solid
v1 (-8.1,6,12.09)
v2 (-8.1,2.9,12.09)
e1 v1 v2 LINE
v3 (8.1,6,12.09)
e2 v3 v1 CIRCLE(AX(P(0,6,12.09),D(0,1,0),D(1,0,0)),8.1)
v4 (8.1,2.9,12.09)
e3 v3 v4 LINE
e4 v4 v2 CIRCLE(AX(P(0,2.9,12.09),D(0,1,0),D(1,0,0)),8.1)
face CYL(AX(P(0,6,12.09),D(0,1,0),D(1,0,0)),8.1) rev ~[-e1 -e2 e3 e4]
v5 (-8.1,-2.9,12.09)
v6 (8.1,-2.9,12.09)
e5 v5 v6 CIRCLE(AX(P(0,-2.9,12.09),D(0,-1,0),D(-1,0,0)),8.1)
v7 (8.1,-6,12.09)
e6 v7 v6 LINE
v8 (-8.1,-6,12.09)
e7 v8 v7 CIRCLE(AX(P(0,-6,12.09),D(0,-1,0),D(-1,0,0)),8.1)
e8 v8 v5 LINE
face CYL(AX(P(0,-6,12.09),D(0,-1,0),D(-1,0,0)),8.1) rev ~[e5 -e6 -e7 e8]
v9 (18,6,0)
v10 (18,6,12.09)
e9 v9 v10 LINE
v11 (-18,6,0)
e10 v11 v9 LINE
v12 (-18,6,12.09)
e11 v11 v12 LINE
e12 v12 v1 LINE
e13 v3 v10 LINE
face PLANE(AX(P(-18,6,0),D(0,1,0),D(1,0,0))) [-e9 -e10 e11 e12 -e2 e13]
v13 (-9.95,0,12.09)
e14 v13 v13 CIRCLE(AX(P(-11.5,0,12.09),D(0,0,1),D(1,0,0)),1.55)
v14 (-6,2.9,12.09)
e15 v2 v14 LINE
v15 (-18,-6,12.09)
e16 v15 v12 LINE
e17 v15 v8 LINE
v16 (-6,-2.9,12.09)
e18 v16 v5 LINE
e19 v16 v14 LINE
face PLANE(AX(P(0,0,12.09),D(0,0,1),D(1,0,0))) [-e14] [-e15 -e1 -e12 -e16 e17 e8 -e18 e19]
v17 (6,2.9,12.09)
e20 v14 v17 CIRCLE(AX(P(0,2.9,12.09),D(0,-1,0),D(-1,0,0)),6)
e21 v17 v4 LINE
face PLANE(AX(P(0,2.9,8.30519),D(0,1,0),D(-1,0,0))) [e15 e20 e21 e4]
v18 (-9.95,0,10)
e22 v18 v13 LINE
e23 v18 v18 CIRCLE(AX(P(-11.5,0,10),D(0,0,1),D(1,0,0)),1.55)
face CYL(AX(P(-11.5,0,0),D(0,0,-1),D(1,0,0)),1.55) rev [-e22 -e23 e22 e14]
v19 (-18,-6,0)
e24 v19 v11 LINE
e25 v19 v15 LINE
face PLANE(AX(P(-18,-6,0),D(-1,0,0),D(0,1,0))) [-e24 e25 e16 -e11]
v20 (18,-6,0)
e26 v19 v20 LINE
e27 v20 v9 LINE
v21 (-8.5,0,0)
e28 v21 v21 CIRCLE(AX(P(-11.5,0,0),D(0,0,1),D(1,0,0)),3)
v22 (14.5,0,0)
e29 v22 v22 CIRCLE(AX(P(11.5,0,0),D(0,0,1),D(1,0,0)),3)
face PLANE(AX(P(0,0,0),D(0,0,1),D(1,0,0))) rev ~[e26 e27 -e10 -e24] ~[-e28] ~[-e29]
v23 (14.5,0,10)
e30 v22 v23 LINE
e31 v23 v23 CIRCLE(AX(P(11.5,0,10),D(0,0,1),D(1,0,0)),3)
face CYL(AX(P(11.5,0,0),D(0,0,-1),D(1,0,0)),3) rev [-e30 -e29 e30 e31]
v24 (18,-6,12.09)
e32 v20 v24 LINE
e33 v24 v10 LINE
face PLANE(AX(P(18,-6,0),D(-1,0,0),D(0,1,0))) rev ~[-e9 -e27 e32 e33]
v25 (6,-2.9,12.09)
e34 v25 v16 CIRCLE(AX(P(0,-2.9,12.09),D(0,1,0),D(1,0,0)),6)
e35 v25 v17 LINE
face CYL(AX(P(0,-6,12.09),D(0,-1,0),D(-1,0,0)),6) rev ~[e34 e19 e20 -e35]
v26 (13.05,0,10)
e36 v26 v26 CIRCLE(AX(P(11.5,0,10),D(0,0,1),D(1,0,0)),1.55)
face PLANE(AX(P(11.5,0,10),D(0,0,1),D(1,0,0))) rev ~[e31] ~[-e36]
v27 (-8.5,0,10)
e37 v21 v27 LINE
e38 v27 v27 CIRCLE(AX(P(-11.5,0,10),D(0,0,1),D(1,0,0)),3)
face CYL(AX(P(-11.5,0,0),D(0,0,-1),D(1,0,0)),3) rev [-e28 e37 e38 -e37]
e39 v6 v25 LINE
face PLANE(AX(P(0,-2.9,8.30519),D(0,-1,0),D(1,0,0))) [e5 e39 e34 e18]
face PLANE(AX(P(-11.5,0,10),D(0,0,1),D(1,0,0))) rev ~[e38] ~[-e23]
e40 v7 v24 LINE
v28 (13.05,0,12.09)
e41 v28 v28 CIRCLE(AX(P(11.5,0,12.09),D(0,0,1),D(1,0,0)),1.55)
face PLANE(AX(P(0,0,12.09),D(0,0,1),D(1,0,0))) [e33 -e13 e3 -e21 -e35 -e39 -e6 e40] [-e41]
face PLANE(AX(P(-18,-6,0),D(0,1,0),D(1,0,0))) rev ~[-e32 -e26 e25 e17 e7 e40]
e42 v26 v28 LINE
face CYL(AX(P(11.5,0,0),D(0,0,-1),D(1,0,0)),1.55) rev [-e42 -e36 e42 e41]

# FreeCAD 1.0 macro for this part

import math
import FreeCAD as App
import Part
import Sketcher

doc = App.newDocument("Part")
body = doc.addObject("PartDesign::Body", "Body")

sketch1 = body.newObject("Sketcher::SketchObject", "Sketch")
sketch1.AttachmentSupport = (doc.getObject("XY_Plane"), [""])
sketch1.MapMode = "FlatFace"
sketch1.addGeometry(Part.LineSegment(App.Vector(-18, 6, 0), App.Vector(-18, -6, 0)), False)
sketch1.addGeometry(Part.LineSegment(App.Vector(-18, -6, 0), App.Vector(18, -6, 0)), False)
sketch1.addGeometry(Part.LineSegment(App.Vector(18, -6, 0), App.Vector(18, 6, 0)), False)
sketch1.addGeometry(Part.LineSegment(App.Vector(18, 6, 0), App.Vector(-18, 6, 0)), False)
sketch1.addGeometry(Part.Circle(App.Vector(-11.5, 0, 0), App.Vector(0, 0, 1), 1.55), False)
sketch1.addGeometry(Part.Circle(App.Vector(11.5, 0, 0), App.Vector(0, 0, 1), 1.55), False)
sketch1.addConstraint(Sketcher.Constraint("Coincident", 0, 2, 1, 1))
sketch1.addConstraint(Sketcher.Constraint("Coincident", 1, 2, 2, 1))
sketch1.addConstraint(Sketcher.Constraint("Coincident", 2, 2, 3, 1))
sketch1.addConstraint(Sketcher.Constraint("Coincident", 3, 2, 0, 1))
sketch1.addConstraint(Sketcher.Constraint("Vertical", 0))
sketch1.addConstraint(Sketcher.Constraint("Horizontal", 1))
sketch1.addConstraint(Sketcher.Constraint("Vertical", 2))
sketch1.addConstraint(Sketcher.Constraint("Horizontal", 3))
sketch1.addConstraint(Sketcher.Constraint("Equal", 4, 5))
sketch1.addConstraint(Sketcher.Constraint("Symmetric", 4, 3, 5, 3, -1, 1))
sketch1.addConstraint(Sketcher.Constraint("Symmetric", 0, 2, 2, 2, -1, 1))
sketch1.addConstraint(Sketcher.Constraint("PointOnObject", 4, 3, -1))
sketch1.addConstraint(Sketcher.Constraint("Diameter", 4, 3.1))
sketch1.addConstraint(Sketcher.Constraint("DistanceX", 1, 1, 1, 2, 36.0))
sketch1.addConstraint(Sketcher.Constraint("DistanceY", 0, 2, 0, 1, 12.0))
sketch1.addConstraint(Sketcher.Constraint("DistanceX", 4, 3, 5, 3, 23.0))
pad1 = body.newObject("PartDesign::Pad", "Pad")
pad1.Profile = sketch1
pad1.Length = 12.09

sketch2 = body.newObject("Sketcher::SketchObject", "Sketch001")
sketch2.AttachmentSupport = (doc.getObject("XY_Plane"), [""])
sketch2.MapMode = "FlatFace"
sketch2.addGeometry(Part.Circle(App.Vector(-11.5, 0, 0), App.Vector(0, 0, 1), 3), False)
sketch2.addGeometry(Part.Circle(App.Vector(-11.5, 0, 0), App.Vector(0, 0, 1), 1.55), False)
sketch2.addGeometry(Part.Circle(App.Vector(11.5, 0, 0), App.Vector(0, 0, 1), 3), False)
sketch2.addGeometry(Part.Circle(App.Vector(11.5, 0, 0), App.Vector(0, 0, 1), 1.55), False)
sketch2.addConstraint(Sketcher.Constraint("Coincident", 1, 3, 0, 3))
sketch2.addConstraint(Sketcher.Constraint("Coincident", 3, 3, 2, 3))
sketch2.addConstraint(Sketcher.Constraint("Equal", 0, 2))
sketch2.addConstraint(Sketcher.Constraint("Equal", 1, 3))
sketch2.addConstraint(Sketcher.Constraint("Symmetric", 0, 3, 2, 3, -1, 1))
sketch2.addConstraint(Sketcher.Constraint("PointOnObject", 0, 3, -1))
sketch2.addConstraint(Sketcher.Constraint("Diameter", 0, 6.0))
sketch2.addConstraint(Sketcher.Constraint("Diameter", 1, 3.1))
sketch2.addConstraint(Sketcher.Constraint("DistanceX", 0, 3, 2, 3, 23.0))
pocket1 = body.newObject("PartDesign::Pocket", "Pocket")
pocket1.Profile = sketch2
pocket1.Length = 10
pocket1.Reversed = True

sketch3 = body.newObject("Sketcher::SketchObject", "Sketch002")
sketch3.AttachmentSupport = (doc.getObject("XZ_Plane"), [""])
sketch3.MapMode = "FlatFace"
sketch3.AttachmentOffset = App.Placement(App.Vector(0, 0, 6), App.Rotation())
sketch3.addGeometry(Part.LineSegment(App.Vector(6, 12.09, 0), App.Vector(-6, 12.09, 0)), False)
sketch3.addGeometry(Part.ArcOfCircle(Part.Circle(App.Vector(0, 12.09, 0), App.Vector(0, 0, 1), 6), math.radians(180), math.radians(360)), False)
sketch3.addConstraint(Sketcher.Constraint("Coincident", 0, 1, 1, 2))
sketch3.addConstraint(Sketcher.Constraint("Coincident", 1, 1, 0, 2))
sketch3.addConstraint(Sketcher.Constraint("Horizontal", 0))
sketch3.addConstraint(Sketcher.Constraint("PointOnObject", 1, 3, -2))
sketch3.addConstraint(Sketcher.Constraint("Horizontal", 1, 3, 0, 1))
sketch3.addConstraint(Sketcher.Constraint("Radius", 1, 6.0))
sketch3.addConstraint(Sketcher.Constraint("DistanceY", -1, 1, 1, 3, 12.09))
pocket2 = body.newObject("PartDesign::Pocket", "Pocket001")
pocket2.Profile = sketch3
pocket2.Type = "ThroughAll"

sketch4 = body.newObject("Sketcher::SketchObject", "Sketch003")
sketch4.AttachmentSupport = (doc.getObject("XZ_Plane"), [""])
sketch4.MapMode = "FlatFace"
sketch4.AttachmentOffset = App.Placement(App.Vector(0, 0, 6), App.Rotation())
sketch4.addGeometry(Part.LineSegment(App.Vector(-6, 12.09, 0), App.Vector(-8.1, 12.09, 0)), False)
sketch4.addGeometry(Part.ArcOfCircle(Part.Circle(App.Vector(0, 12.09, 0), App.Vector(0, 0, 1), 8.1), math.radians(180), math.radians(360)), False)
sketch4.addGeometry(Part.LineSegment(App.Vector(8.1, 12.09, 0), App.Vector(6, 12.09, 0)), False)
sketch4.addGeometry(Part.ArcOfCircle(Part.Circle(App.Vector(0, 12.09, 0), App.Vector(0, 0, 1), 6), math.radians(180), math.radians(360)), False)
sketch4.addConstraint(Sketcher.Constraint("Coincident", 0, 2, 1, 1))
sketch4.addConstraint(Sketcher.Constraint("Coincident", 1, 2, 2, 1))
sketch4.addConstraint(Sketcher.Constraint("Coincident", 2, 2, 3, 2))
sketch4.addConstraint(Sketcher.Constraint("Coincident", 3, 1, 0, 1))
sketch4.addConstraint(Sketcher.Constraint("Horizontal", 0))
sketch4.addConstraint(Sketcher.Constraint("Horizontal", 2))
sketch4.addConstraint(Sketcher.Constraint("Coincident", 3, 3, 1, 3))
sketch4.addConstraint(Sketcher.Constraint("Symmetric", 0, 2, 1, 2, -2))
sketch4.addConstraint(Sketcher.Constraint("Horizontal", 3, 3, 0, 2))
sketch4.addConstraint(Sketcher.Constraint("Radius", 3, 6.0))
sketch4.addConstraint(Sketcher.Constraint("Radius", 1, 8.1))
sketch4.addConstraint(Sketcher.Constraint("DistanceY", -1, 1, 1, 3, 12.09))
pocket3 = body.newObject("PartDesign::Pocket", "Pocket002")
pocket3.Profile = sketch4
pocket3.Length = 3.1

sketch5 = body.newObject("Sketcher::SketchObject", "Sketch004")
sketch5.AttachmentSupport = (doc.getObject("XZ_Plane"), [""])
sketch5.MapMode = "FlatFace"
sketch5.AttachmentOffset = App.Placement(App.Vector(0, 0, -6), App.Rotation())
sketch5.addGeometry(Part.LineSegment(App.Vector(6, 12.09, 0), App.Vector(8.1, 12.09, 0)), False)
sketch5.addGeometry(Part.ArcOfCircle(Part.Circle(App.Vector(0, 12.09, 0), App.Vector(0, 0, 1), 8.1), math.radians(180), math.radians(360)), False)
sketch5.addGeometry(Part.LineSegment(App.Vector(-8.1, 12.09, 0), App.Vector(-6, 12.09, 0)), False)
sketch5.addGeometry(Part.ArcOfCircle(Part.Circle(App.Vector(0, 12.09, 0), App.Vector(0, 0, 1), 6), math.radians(180), math.radians(360)), False)
sketch5.addConstraint(Sketcher.Constraint("Coincident", 0, 2, 1, 2))
sketch5.addConstraint(Sketcher.Constraint("Coincident", 1, 1, 2, 1))
sketch5.addConstraint(Sketcher.Constraint("Coincident", 2, 2, 3, 1))
sketch5.addConstraint(Sketcher.Constraint("Coincident", 3, 2, 0, 1))
sketch5.addConstraint(Sketcher.Constraint("Horizontal", 0))
sketch5.addConstraint(Sketcher.Constraint("Horizontal", 2))
sketch5.addConstraint(Sketcher.Constraint("Coincident", 3, 3, 1, 3))
sketch5.addConstraint(Sketcher.Constraint("Symmetric", 0, 2, 1, 1, -2))
sketch5.addConstraint(Sketcher.Constraint("Horizontal", 3, 3, 0, 2))
sketch5.addConstraint(Sketcher.Constraint("Radius", 3, 6.0))
sketch5.addConstraint(Sketcher.Constraint("Radius", 1, 8.1))
sketch5.addConstraint(Sketcher.Constraint("DistanceY", -1, 1, 1, 3, 12.09))
pocket4 = body.newObject("PartDesign::Pocket", "Pocket003")
pocket4.Profile = sketch5
pocket4.Length = 3.1
pocket4.Reversed = True

doc.recompute()
